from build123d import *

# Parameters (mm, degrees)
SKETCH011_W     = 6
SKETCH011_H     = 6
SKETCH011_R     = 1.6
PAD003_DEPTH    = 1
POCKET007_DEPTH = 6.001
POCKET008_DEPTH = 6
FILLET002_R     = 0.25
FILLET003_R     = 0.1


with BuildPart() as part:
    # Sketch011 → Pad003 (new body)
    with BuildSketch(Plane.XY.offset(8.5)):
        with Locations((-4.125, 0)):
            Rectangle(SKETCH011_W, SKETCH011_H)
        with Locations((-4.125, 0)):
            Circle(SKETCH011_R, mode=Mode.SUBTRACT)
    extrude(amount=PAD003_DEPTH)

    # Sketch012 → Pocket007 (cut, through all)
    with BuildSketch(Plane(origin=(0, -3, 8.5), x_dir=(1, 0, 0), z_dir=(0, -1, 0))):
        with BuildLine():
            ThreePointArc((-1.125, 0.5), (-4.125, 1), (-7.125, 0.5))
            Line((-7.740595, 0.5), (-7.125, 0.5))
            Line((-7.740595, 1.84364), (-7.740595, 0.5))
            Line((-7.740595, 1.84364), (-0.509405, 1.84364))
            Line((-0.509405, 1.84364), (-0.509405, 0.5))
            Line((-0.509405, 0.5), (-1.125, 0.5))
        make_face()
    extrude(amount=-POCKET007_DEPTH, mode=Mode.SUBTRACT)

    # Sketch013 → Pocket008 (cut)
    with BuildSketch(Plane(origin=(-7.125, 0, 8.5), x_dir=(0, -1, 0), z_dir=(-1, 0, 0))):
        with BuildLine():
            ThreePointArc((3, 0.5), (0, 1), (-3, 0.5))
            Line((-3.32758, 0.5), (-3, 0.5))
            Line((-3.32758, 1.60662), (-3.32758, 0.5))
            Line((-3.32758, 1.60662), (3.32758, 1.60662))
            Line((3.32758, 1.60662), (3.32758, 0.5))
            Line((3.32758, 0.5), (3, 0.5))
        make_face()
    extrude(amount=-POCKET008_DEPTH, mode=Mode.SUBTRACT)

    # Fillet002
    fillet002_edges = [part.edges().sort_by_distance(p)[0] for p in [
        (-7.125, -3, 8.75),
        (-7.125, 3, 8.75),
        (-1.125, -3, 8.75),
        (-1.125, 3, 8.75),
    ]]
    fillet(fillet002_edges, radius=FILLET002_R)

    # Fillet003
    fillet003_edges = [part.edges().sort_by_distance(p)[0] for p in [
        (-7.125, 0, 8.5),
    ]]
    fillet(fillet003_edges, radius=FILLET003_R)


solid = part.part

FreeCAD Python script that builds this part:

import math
import FreeCAD as App
import Part
import Sketcher
from FreeCAD import Vector


def edges_at(feature, points):
    """Names of the edges that pass closest to the given points."""
    edges = feature.Shape.Edges
    near = lambda p: min(range(len(edges)), key=lambda i: edges[i].distToShape(Part.Vertex(*p))[0])
    return sorted({f"Edge{near(p) + 1}" for p in points})


def add_polygon(sketch, points):
    """Adds a closed chain of lines whose ends are joined by coincident constraints."""
    first, n = sketch.GeometryCount, len(points)
    for a, b in zip(points, points[1:] + points[:1]):
        sketch.addGeometry(Part.LineSegment(App.Vector(*a, 0), App.Vector(*b, 0)), False)
    for i in range(n):
        sketch.addConstraint(Sketcher.Constraint("Coincident", first + i, 2, first + (i + 1) % n, 1))

doc = App.newDocument("Part")
body = doc.addObject("PartDesign::Body", "Body")

# Sketch on XY plane
sketch1 = body.newObject("Sketcher::SketchObject", "Sketch")
sketch1.AttachmentSupport = (doc.getObject("XY_Plane"), [""])
sketch1.MapMode = "FlatFace"
sketch1.AttachmentOffset = App.Placement(Vector(0, 0, 8.5), App.Rotation())
add_polygon(sketch1, [(-7.1, 3), (-7.1, -3), (-1.1, -3), (-1.1, 3)])  # lines 0-3
sketch1.addGeometry(Part.Circle(Vector(-4.1, 0, 0), Vector(0, 0, 1), 1.6), False)  # 4
sketch1.addConstraint([
    Sketcher.Constraint("Vertical", 0),
    Sketcher.Constraint("Horizontal", 1),
    Sketcher.Constraint("Vertical", 2),
    Sketcher.Constraint("Horizontal", 3),
    Sketcher.Constraint("PointOnObject", 4, 3, -1),
    Sketcher.Constraint("Equal", 3, 0),
    Sketcher.Constraint("Diameter", 4, 3.2),
    Sketcher.Constraint("DistanceX", 1, 1, 1, 2, 6.0),
    Sketcher.Constraint("DistanceY", 0, 2, -1, 1, 3.0),
    Sketcher.Constraint("DistanceX", 0, 2, 4, 3, 3.0),
    Sketcher.Constraint("DistanceX", 4, 3, -1, 1, 4.125),
])
pad1 = body.newObject("PartDesign::Pad", "Pad")
pad1.Profile = sketch1
pad1.Length = 1

# Sketch on XZ plane
sketch2 = body.newObject("Sketcher::SketchObject", "Sketch001")
sketch2.AttachmentSupport = (doc.getObject("XZ_Plane"), [""])
sketch2.MapMode = "FlatFace"
sketch2.AttachmentOffset = App.Placement(Vector(0, 0, 3), App.Rotation())
sketch2.addGeometry([
    Part.ArcOfCircle(Part.Circle(Vector(-4.1, 0.2, 0), Vector(0, 0, 1), 9.2), math.radians(71), math.radians(109)),  # 0
    Part.LineSegment(Vector(-1.1, 9, 0), Vector(-0.5, 9, 0)),  # 1
    Part.LineSegment(Vector(-0.5, 9, 0), Vector(-0.5, 10.3, 0)),  # 2
    Part.LineSegment(Vector(-0.5, 10.3, 0), Vector(-7.7, 10.3, 0)),  # 3
    Part.LineSegment(Vector(-7.7, 10.3, 0), Vector(-7.7, 9, 0)),  # 4
    Part.LineSegment(Vector(-7.7, 9, 0), Vector(-7.1, 9, 0)),  # 5
], False)
sketch2.addConstraint([
    Sketcher.Constraint("Coincident", 0, 1, 1, 1),
    Sketcher.Constraint("Coincident", 1, 2, 2, 1),
    Sketcher.Constraint("Coincident", 2, 2, 3, 1),
    Sketcher.Constraint("Coincident", 3, 2, 4, 1),
    Sketcher.Constraint("Coincident", 4, 2, 5, 1),
    Sketcher.Constraint("Coincident", 5, 2, 0, 2),
    Sketcher.Constraint("Horizontal", 1),
    Sketcher.Constraint("Vertical", 2),
    Sketcher.Constraint("Horizontal", 3),
    Sketcher.Constraint("Vertical", 4),
    Sketcher.Constraint("Horizontal", 5),
    Sketcher.Constraint("Horizontal", 1, 2, 4, 2),
    Sketcher.Constraint("Equal", 1, 5),
    Sketcher.Constraint("Radius", 0, 9.25),
    Sketcher.Constraint("DistanceY", -1, 1, 0, 1, 9.0),
    Sketcher.Constraint("DistanceX", 0, 3, 0, 1, 3.0),
    Sketcher.Constraint("DistanceX", 0, 3, -1, 1, 4.125),
    Sketcher.Constraint("DistanceX", 3, 2, 3, 1, 7.23119),
    Sketcher.Constraint("DistanceY", 2, 1, 2, 2, 1.34364),
])
pocket1 = body.newObject("PartDesign::Pocket", "Pocket")
pocket1.Profile = sketch2
pocket1.Type = "ThroughAll"

# Sketch on YZ plane
sketch3 = body.newObject("Sketcher::SketchObject", "Sketch002")
sketch3.AttachmentSupport = (doc.getObject("YZ_Plane"), [""])
sketch3.MapMode = "FlatFace"
sketch3.AttachmentOffset = App.Placement(Vector(0, 0, -7.125), App.Rotation())
sketch3.addGeometry([
    Part.ArcOfCircle(Part.Circle(Vector(0, 0.25, 0), Vector(0, 0, 1), 9.25), math.radians(71), math.radians(109)),  # 0
    Part.LineSegment(Vector(-3, 9, 0), Vector(-3.33, 9, 0)),  # 1
    Part.LineSegment(Vector(-3.33, 9, 0), Vector(-3.33, 10.11, 0)),  # 2
    Part.LineSegment(Vector(-3.33, 10.11, 0), Vector(3.33, 10.11, 0)),  # 3
    Part.LineSegment(Vector(3.33, 10.11, 0), Vector(3.33, 9, 0)),  # 4
    Part.LineSegment(Vector(3.33, 9, 0), Vector(3, 9, 0)),  # 5
], False)
sketch3.addConstraint([
    Sketcher.Constraint("Coincident", 0, 2, 1, 1),
    Sketcher.Constraint("Coincident", 1, 2, 2, 1),
    Sketcher.Constraint("Coincident", 2, 2, 3, 1),
    Sketcher.Constraint("Coincident", 3, 2, 4, 1),
    Sketcher.Constraint("Coincident", 4, 2, 5, 1),
    Sketcher.Constraint("Coincident", 5, 2, 0, 1),
    Sketcher.Constraint("Horizontal", 1),
    Sketcher.Constraint("Vertical", 2),
    Sketcher.Constraint("Horizontal", 3),
    Sketcher.Constraint("Vertical", 4),
    Sketcher.Constraint("Horizontal", 5),
    Sketcher.Constraint("Symmetric", 1, 2, 4, 2, -2),
    Sketcher.Constraint("PointOnObject", 0, 3, -2),
    Sketcher.Constraint("Radius", 0, 9.25),
    Sketcher.Constraint("DistanceX", 0, 2, -1, 1, 3.0),
    Sketcher.Constraint("DistanceY", -1, 1, 0, 2, 9.0),
    Sketcher.Constraint("DistanceX", 1, 2, 1, 1, 0.32758),
    Sketcher.Constraint("DistanceY", 2, 1, 2, 2, 1.10662),
])
pocket2 = body.newObject("PartDesign::Pocket", "Pocket001")
pocket2.Profile = sketch3
pocket2.Length = 6
pocket2.Reversed = True
doc.recompute()

fillet = body.newObject("PartDesign::Fillet", "Fillet")
fillet.Base = (pocket2, edges_at(pocket2, [
    (-7.125, -3, 8.75),
    (-7.125, 3, 8.75),
    (-1.125, -3, 8.75),
    (-1.125, 3, 8.75),
]))
fillet.Radius = 0.25
doc.recompute()

fillet2 = body.newObject("PartDesign::Fillet", "Fillet001")
fillet2.Base = (fillet, edges_at(fillet, [(-7.125, 0, 8.5)]))
fillet2.Radius = 0.1

doc.recompute()
